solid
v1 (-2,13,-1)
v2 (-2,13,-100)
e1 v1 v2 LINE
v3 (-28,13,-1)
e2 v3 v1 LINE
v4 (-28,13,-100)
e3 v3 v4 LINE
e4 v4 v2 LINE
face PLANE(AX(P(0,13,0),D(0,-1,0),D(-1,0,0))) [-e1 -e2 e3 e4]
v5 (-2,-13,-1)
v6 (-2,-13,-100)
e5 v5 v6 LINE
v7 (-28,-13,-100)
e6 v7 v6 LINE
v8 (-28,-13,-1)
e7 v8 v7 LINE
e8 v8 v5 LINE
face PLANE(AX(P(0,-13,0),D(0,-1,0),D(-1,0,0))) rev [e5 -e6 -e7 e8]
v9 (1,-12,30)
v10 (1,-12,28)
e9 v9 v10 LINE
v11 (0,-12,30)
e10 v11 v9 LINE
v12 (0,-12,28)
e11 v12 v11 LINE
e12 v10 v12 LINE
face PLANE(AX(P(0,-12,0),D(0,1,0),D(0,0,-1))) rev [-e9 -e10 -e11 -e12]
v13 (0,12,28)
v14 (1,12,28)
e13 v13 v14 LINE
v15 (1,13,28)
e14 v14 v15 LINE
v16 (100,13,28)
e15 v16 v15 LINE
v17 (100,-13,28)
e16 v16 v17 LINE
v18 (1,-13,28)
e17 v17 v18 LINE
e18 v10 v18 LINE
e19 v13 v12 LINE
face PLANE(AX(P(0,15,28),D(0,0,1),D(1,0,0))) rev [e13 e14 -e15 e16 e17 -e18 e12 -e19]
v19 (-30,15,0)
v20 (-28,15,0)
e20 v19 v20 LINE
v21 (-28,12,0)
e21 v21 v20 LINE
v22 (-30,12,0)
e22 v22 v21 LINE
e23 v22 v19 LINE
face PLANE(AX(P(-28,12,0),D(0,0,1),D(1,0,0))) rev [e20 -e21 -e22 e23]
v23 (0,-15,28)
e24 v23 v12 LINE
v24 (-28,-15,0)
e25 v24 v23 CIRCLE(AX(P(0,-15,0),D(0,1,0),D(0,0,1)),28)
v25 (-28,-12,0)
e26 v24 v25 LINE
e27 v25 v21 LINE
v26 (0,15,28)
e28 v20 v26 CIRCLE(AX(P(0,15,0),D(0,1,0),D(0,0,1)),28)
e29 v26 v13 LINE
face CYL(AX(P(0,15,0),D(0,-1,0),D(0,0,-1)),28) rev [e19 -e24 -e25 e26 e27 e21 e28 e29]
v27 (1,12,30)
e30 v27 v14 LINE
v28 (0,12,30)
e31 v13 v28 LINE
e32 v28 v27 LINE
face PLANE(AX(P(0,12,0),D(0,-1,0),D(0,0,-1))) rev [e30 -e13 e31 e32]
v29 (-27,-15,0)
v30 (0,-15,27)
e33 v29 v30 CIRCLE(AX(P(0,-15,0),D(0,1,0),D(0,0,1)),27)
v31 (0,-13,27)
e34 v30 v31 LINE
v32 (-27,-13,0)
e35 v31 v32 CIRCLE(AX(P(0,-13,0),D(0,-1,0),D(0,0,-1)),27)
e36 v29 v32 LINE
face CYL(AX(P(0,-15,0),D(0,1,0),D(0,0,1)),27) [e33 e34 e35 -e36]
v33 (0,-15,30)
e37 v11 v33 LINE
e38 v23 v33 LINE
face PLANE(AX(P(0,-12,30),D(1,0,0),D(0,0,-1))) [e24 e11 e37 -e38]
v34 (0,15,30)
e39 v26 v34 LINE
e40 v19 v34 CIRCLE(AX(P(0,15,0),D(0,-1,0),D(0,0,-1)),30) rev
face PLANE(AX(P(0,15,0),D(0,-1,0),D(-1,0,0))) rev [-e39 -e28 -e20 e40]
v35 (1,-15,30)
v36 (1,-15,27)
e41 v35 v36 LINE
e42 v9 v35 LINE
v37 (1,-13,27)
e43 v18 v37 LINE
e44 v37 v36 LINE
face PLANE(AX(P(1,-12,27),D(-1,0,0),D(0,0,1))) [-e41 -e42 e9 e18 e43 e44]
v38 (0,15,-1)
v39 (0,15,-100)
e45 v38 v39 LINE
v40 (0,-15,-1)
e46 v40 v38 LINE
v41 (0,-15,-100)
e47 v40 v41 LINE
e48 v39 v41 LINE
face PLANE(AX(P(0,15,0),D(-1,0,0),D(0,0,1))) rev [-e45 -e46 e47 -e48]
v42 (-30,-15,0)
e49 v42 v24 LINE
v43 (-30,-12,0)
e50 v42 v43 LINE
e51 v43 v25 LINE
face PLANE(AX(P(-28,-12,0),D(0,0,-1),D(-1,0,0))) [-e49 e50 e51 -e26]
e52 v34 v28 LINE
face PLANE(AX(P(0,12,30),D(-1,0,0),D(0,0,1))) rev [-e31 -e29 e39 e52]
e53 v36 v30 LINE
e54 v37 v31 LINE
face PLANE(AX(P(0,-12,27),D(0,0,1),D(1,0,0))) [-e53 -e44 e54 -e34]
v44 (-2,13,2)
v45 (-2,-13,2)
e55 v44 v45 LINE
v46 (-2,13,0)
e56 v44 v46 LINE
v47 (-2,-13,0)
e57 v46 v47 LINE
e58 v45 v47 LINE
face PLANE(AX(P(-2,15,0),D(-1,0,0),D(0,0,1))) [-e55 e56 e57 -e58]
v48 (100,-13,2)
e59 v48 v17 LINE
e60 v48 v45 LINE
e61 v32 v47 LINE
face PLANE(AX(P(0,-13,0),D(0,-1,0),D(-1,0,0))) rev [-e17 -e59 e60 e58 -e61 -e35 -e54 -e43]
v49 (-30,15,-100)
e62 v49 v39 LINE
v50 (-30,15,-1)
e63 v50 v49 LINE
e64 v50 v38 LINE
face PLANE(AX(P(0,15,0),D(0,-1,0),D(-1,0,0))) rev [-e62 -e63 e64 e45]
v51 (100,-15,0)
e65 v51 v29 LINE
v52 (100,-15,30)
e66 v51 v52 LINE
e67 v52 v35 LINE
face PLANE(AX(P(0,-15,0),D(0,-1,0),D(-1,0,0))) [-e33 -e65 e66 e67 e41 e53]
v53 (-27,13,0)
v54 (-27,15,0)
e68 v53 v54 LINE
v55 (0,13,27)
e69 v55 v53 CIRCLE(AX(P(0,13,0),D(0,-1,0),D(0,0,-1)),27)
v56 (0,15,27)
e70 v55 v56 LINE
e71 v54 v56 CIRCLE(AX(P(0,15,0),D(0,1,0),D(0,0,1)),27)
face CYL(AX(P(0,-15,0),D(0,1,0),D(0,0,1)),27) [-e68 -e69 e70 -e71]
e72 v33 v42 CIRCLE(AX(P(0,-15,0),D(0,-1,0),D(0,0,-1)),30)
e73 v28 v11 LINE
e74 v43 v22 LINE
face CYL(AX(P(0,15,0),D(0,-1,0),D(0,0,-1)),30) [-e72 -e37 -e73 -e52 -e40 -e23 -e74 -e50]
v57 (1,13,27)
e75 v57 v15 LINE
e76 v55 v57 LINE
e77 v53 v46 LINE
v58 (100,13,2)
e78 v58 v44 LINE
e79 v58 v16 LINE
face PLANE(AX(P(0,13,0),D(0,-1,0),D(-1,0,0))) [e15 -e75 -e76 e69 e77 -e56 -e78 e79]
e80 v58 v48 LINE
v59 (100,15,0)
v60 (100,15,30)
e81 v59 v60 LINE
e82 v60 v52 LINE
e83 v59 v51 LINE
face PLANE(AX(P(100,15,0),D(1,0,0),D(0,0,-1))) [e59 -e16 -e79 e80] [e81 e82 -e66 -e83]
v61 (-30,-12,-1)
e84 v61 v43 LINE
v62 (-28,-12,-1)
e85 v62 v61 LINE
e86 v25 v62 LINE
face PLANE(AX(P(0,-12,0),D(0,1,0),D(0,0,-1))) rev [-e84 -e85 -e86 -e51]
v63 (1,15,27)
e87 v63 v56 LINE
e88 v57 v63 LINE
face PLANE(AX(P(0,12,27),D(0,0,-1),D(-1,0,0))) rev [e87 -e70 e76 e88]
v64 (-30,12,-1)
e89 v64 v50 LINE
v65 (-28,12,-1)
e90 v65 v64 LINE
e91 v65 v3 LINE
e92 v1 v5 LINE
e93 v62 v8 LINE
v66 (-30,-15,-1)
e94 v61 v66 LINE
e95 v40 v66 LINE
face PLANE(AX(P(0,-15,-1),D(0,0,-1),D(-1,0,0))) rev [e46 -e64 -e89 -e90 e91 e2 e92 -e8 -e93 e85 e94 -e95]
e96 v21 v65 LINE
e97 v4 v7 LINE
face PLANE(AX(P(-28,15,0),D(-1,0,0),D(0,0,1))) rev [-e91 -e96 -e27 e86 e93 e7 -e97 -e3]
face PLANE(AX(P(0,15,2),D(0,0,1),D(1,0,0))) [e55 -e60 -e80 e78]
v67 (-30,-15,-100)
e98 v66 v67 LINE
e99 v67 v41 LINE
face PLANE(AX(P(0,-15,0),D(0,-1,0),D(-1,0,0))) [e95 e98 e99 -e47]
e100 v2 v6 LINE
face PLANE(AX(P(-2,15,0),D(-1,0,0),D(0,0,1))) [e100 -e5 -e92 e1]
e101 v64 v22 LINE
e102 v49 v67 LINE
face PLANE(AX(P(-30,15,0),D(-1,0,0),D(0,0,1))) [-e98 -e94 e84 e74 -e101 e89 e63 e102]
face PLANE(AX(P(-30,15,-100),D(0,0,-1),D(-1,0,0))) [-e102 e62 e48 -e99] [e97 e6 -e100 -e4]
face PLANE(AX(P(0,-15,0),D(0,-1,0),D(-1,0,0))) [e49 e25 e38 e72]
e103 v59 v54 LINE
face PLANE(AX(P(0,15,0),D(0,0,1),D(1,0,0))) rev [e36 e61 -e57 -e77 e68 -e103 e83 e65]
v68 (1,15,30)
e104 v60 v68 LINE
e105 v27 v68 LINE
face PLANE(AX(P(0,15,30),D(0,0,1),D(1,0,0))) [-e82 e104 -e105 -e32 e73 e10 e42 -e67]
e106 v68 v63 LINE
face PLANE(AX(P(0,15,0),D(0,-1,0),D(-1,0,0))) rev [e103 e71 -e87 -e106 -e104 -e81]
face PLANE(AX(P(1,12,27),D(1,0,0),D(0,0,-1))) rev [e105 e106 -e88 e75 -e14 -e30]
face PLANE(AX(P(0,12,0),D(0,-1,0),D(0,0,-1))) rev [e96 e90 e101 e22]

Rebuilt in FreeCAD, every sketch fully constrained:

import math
import FreeCAD as App
import Part
import Sketcher
from FreeCAD import Vector
Q = App.Units.Quantity


def edges_at(feature, points):
    """Names of the edges that pass closest to the given points."""
    edges = feature.Shape.Edges
    near = lambda p: min(range(len(edges)), key=lambda i: edges[i].distToShape(Part.Vertex(*p))[0])
    return sorted({f"Edge{near(p) + 1}" for p in points})


def faces_at(feature, points):
    """Names of the faces that lie closest to the given points."""
    faces = feature.Shape.Faces
    near = lambda p: min(range(len(faces)), key=lambda i: faces[i].distToShape(Part.Vertex(*p))[0])
    return sorted({f"Face{near(p) + 1}" for p in points})


def add_polygon(sketch, points):
    """Adds a closed chain of lines whose ends are joined by coincident constraints."""
    first, n = sketch.GeometryCount, len(points)
    for a, b in zip(points, points[1:] + points[:1]):
        sketch.addGeometry(Part.LineSegment(App.Vector(*a, 0), App.Vector(*b, 0)), False)
    for i in range(n):
        sketch.addConstraint(Sketcher.Constraint("Coincident", first + i, 2, first + (i + 1) % n, 1))

doc = App.newDocument("Part")
body = doc.addObject("PartDesign::Body", "Body")

# Sketch on XZ plane
sketch1 = doc.addObject("Sketcher::SketchObject", "Sketch")
body.addObject(sketch1)
sketch1.AttachmentSupport = (doc.XZ_Plane, [""])
sketch1.MapMode = "FlatFace"
add_polygon(sketch1, [(0, 0), (0, -100), (-30, -100), (-30, 30), (100, 30), (100, 0)])  # lines 0-5
sketch1.addConstraint([
    Sketcher.Constraint("Vertical", 0),
    Sketcher.Constraint("Horizontal", 1),
    Sketcher.Constraint("Vertical", 2),
    Sketcher.Constraint("Horizontal", 3),
    Sketcher.Constraint("Vertical", 4),
    Sketcher.Constraint("Horizontal", 5),
    Sketcher.Constraint("Coincident", 5, 2, -1, 1),
    Sketcher.Constraint("Equal", 5, 0),
    Sketcher.Constraint("Equal", 3, 2),
    Sketcher.Constraint("DistanceX", 1, 2, 1, 1, Q("30 mm")),
    Sketcher.Constraint("DistanceX", 3, 1, 3, 2, Q("130 mm")),
])
pad1 = doc.addObject("PartDesign::Pad", "Pad")
body.addObject(pad1)
pad1.Profile = sketch1
pad1.Length = 30
pad1.Midplane = True
doc.recompute()

fillet = doc.addObject("PartDesign::Fillet", "Fillet")
body.addObject(fillet)
fillet.Base = (pad1, edges_at(pad1, [(-30, 0, 30)]))
fillet.Radius = 30
doc.recompute()

thickness = doc.addObject("PartDesign::Thickness", "Thickness")
body.addObject(thickness)
thickness.Base = (fillet, faces_at(fillet, [(100, 0, 15), (-15, 0, -100)]))
thickness.Value = 2
thickness.Reversed = True
thickness.Join = "Intersection"

# Sketch on XZ plane
sketch2 = doc.addObject("Sketcher::SketchObject", "Sketch001")
body.addObject(sketch2)
sketch2.AttachmentSupport = (doc.XZ_Plane, [""])
sketch2.MapMode = "FlatFace"
sketch2.AttachmentOffset = App.Placement(Vector(0, 0, -15), App.Rotation())
sketch2.addGeometry([
    Part.ArcOfCircle(Part.Circle(Vector(0, 0, 0), Vector(0, 0, 1), 28), math.radians(90), math.radians(180)),  # 0
    Part.LineSegment(Vector(0, 28, 0), Vector(0, 27, 0)),  # 1
    Part.ArcOfCircle(Part.Circle(Vector(0, 0, 0), Vector(0, 0, 1), 27), math.radians(90), math.radians(180)),  # 2
    Part.LineSegment(Vector(-27, 0, 0), Vector(0, 0, 0)),  # 3
    Part.LineSegment(Vector(0, 0, 0), Vector(0, -1, 0)),  # 4
    Part.LineSegment(Vector(0, -1, 0), Vector(-28, -1, 0)),  # 5
    Part.LineSegment(Vector(-28, -1, 0), Vector(-28, 0, 0)),  # 6
], False)
sketch2.addConstraint([
    Sketcher.Constraint("Coincident", 0, 1, 1, 1),
    Sketcher.Constraint("Coincident", 1, 2, 2, 1),
    Sketcher.Constraint("Coincident", 2, 2, 3, 1),
    Sketcher.Constraint("Coincident", 3, 2, 4, 1),
    Sketcher.Constraint("Coincident", 4, 2, 5, 1),
    Sketcher.Constraint("Coincident", 5, 2, 6, 1),
    Sketcher.Constraint("Tangent", 6, 2, 0, 2),
    Sketcher.Constraint("Vertical", 1),
    Sketcher.Constraint("Horizontal", 3),
    Sketcher.Constraint("Vertical", 4),
    Sketcher.Constraint("Horizontal", 5),
    Sketcher.Constraint("Vertical", 6),
    Sketcher.Constraint("Coincident", 0, 3, -1, 1),
    Sketcher.Constraint("Coincident", 2, 3, -1, 1),
    Sketcher.Constraint("Coincident", 3, 2, -1, 1),
    Sketcher.Constraint("PointOnObject", 0, 1, -2),
    Sketcher.Constraint("Equal", 1, 4),
    Sketcher.Constraint("Radius", 0, Q("28 mm")),
    Sketcher.Constraint("Radius", 2, Q("27 mm")),
])
pocket1 = doc.addObject("PartDesign::Pocket", "Pocket")
body.addObject(pocket1)
pocket1.Profile = sketch2
pocket1.Type = "ThroughAll"
pocket1.Midplane = True

# Sketch on XZ plane
sketch3 = doc.addObject("Sketcher::SketchObject", "Sketch002")
body.addObject(sketch3)
sketch3.AttachmentSupport = (doc.XZ_Plane, [""])
sketch3.MapMode = "FlatFace"
sketch3.AttachmentOffset = App.Placement(Vector(0, 0, -15), App.Rotation())
add_polygon(sketch3, [(-30, -1), (-30, 0), (-28, 0), (-28, -1)])  # lines 0-3
add_polygon(sketch3, [(0, 27), (0, 30), (1, 30), (1, 27)])  # lines 4-7
sketch3.addConstraint([
    Sketcher.Constraint("Vertical", 0),
    Sketcher.Constraint("Horizontal", 1),
    Sketcher.Constraint("Vertical", 2),
    Sketcher.Constraint("Horizontal", 3),
    Sketcher.Constraint("Vertical", 4),
    Sketcher.Constraint("Horizontal", 5),
    Sketcher.Constraint("Vertical", 6),
    Sketcher.Constraint("Horizontal", 7),
    Sketcher.Constraint("PointOnObject", 0, 2, -1),
    Sketcher.Constraint("PointOnObject", 4, 2, -2),
    Sketcher.Constraint("Equal", 7, 0),
    Sketcher.Constraint("DistanceX", 1, 1, 1, 2, Q("2 mm")),
    Sketcher.Constraint("DistanceX", 5, 1, 5, 2, Q("1 mm")),
    Sketcher.Constraint("DistanceY", 4, 1, 4, 2, Q("3 mm")),
    Sketcher.Constraint("DistanceX", 0, 2, -1, 1, Q("30 mm")),
    Sketcher.Constraint("DistanceY", -1, 1, 4, 2, Q("30 mm")),
])
pocket2 = doc.addObject("PartDesign::Pocket", "Pocket001")
body.addObject(pocket2)
pocket2.Profile = sketch3
pocket2.Length = 3
pocket2.Reversed = True
doc.recompute()

mirrored = doc.addObject("PartDesign::Mirrored", "Mirrored")
body.addObject(mirrored)
mirrored.Originals = [pocket2]
mirrored.MirrorPlane = (doc.XZ_Plane, [""])
body.Tip = mirrored

doc.recompute()
